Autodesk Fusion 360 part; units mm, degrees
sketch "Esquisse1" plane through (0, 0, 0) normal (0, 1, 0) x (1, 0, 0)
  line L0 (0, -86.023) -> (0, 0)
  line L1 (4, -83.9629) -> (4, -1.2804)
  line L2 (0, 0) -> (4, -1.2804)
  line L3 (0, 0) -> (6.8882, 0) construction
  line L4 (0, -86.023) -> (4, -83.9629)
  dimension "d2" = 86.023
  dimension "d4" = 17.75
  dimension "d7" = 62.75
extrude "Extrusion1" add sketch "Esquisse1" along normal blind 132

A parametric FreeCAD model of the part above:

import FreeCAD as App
import Part
import Sketcher

V = App.Vector
Q = App.Units.Quantity


def add_polygon(sketch, points):
    """Adds a closed chain of lines whose ends are joined by coincident constraints."""
    first, n = sketch.GeometryCount, len(points)
    for a, b in zip(points, points[1:] + points[:1]):
        sketch.addGeometry(Part.LineSegment(App.Vector(*a, 0), App.Vector(*b, 0)), False)
    for i in range(n):
        sketch.addConstraint(Sketcher.Constraint("Coincident", first + i, 2, first + (i + 1) % n, 1))

doc = App.newDocument("Part")
params = doc.addObject("Spreadsheet::Sheet", "Params")
for row, (alias, value) in enumerate([
    ("sketch1_length", "4.2 mm"),
    ("pad1_length", "132 mm"),
], start=1):
    params.set(f"A{row}", alias)
    params.set(f"B{row}", "=" + value)
    params.setAlias(f"B{row}", alias)

body = doc.addObject("PartDesign::Body", "Body")

# Sketch on XZ plane
sketch1 = body.newObject("Sketcher::SketchObject", "Sketch")
sketch1.AttachmentSupport = (doc.getObject("XZ_Plane"), [""])
sketch1.MapMode = "FlatFace"
add_polygon(sketch1, [(0, 0), (0, 86.023), (4, 83.9629), (4, 1.2804)])  # lines 0-3
sketch1.addConstraint(Sketcher.Constraint("Vertical", 0))
sketch1.addConstraint(Sketcher.Constraint("Vertical", 2))
sketch1.addConstraint(Sketcher.Constraint("Coincident", 3, 2, -1, 1))
sketch1.addConstraint(Sketcher.Constraint("DistanceY", 0, 1, 0, 2, Q("86.023 mm")))
sketch1.addConstraint(Sketcher.Constraint("DistanceX", -1, 1, 1, 2, Q("4 mm")))
sketch1.addConstraint(Sketcher.Constraint("Distance", 3, Q("4.2 mm")))
sketch1.addConstraint(Sketcher.Constraint("Angle", 1, Q("-27.2496 deg")))
sketch1.setExpression("Constraints[9]", "Params.sketch1_length")
pad1 = body.newObject("PartDesign::Pad", "Pad")
pad1.Profile = sketch1
pad1.setExpression("Length", "Params.pad1_length")
pad1.Reversed = True

doc.recompute()
